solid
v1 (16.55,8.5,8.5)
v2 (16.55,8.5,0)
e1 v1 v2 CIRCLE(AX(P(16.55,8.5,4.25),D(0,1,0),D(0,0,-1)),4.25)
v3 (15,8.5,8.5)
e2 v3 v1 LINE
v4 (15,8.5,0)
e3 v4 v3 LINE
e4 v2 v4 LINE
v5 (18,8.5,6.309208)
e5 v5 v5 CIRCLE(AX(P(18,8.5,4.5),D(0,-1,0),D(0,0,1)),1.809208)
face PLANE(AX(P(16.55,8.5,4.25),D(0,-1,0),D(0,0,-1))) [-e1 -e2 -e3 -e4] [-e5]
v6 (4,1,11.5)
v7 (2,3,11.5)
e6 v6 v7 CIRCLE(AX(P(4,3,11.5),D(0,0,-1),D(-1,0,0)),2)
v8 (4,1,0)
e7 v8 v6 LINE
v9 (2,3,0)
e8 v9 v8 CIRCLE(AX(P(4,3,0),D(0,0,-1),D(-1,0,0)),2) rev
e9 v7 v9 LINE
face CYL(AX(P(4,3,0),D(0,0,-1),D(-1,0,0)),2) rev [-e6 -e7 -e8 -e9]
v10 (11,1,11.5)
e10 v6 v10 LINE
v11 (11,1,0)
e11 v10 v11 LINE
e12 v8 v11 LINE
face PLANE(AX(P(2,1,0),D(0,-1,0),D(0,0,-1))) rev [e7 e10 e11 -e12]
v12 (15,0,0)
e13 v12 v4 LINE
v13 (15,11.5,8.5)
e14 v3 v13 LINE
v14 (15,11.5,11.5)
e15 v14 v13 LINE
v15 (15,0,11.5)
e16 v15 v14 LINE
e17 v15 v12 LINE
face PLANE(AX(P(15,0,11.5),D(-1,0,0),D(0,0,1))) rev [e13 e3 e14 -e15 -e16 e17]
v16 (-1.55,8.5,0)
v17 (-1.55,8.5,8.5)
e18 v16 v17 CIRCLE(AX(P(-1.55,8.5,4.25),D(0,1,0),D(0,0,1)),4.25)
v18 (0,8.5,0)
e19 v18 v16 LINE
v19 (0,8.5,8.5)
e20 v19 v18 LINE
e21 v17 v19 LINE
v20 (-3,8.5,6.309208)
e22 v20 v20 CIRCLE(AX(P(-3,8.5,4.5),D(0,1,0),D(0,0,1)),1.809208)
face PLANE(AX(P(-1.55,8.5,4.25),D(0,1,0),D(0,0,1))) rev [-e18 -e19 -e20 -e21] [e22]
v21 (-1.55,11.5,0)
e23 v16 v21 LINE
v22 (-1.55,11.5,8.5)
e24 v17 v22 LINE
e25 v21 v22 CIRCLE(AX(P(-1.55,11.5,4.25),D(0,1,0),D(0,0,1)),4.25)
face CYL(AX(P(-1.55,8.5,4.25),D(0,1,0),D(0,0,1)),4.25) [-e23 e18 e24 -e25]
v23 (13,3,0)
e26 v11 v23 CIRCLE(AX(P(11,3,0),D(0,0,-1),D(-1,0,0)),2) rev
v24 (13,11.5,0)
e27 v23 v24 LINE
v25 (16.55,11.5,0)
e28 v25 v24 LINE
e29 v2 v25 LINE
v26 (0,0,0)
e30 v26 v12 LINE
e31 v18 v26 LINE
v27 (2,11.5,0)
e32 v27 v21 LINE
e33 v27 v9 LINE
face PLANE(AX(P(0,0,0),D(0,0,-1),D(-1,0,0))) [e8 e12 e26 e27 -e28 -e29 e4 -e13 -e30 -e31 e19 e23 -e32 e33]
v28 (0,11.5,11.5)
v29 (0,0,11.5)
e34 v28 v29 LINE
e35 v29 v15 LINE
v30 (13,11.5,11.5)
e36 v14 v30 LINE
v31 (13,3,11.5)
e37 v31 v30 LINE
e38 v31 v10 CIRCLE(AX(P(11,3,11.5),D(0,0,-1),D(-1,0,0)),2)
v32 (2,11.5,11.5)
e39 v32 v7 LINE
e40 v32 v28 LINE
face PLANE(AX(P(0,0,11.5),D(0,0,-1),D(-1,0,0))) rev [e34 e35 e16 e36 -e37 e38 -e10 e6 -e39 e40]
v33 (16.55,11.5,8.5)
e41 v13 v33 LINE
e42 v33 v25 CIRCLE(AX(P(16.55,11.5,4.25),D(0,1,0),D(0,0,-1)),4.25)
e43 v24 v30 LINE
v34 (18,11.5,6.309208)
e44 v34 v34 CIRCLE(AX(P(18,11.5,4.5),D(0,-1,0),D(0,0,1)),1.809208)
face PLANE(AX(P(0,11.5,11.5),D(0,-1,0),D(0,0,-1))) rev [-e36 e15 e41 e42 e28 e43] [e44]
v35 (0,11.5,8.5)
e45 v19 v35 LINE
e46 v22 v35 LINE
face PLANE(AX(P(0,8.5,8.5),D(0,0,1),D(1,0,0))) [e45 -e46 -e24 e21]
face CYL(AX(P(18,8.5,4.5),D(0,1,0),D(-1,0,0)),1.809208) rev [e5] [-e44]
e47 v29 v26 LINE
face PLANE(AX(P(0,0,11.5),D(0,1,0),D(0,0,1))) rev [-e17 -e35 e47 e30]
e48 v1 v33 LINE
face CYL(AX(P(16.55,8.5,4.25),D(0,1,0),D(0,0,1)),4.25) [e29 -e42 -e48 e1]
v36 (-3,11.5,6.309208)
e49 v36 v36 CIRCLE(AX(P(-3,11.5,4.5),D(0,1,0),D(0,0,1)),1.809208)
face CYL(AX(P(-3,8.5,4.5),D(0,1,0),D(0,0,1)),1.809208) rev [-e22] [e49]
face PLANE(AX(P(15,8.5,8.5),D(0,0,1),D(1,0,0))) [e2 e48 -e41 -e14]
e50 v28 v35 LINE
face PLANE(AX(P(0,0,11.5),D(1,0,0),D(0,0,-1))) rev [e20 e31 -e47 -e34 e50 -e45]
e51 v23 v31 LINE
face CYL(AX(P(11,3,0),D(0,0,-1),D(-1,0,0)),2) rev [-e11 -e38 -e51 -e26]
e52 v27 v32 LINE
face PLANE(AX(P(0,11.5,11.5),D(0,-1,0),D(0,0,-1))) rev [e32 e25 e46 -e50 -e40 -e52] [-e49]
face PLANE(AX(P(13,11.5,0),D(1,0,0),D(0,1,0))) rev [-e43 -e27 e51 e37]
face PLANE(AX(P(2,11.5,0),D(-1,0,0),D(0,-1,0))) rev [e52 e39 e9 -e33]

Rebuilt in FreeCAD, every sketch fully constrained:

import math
import FreeCAD as App
import Part
import Sketcher

V = App.Vector


def edges_at(feature, points):
    """Names of the edges that pass closest to the given points."""
    edges = feature.Shape.Edges
    near = lambda p: min(range(len(edges)), key=lambda i: edges[i].distToShape(Part.Vertex(*p))[0])
    return sorted({f"Edge{near(p) + 1}" for p in points})


def add_polygon(sketch, points):
    """Adds a closed chain of lines whose ends are joined by coincident constraints."""
    first, n = sketch.GeometryCount, len(points)
    for a, b in zip(points, points[1:] + points[:1]):
        sketch.addGeometry(Part.LineSegment(App.Vector(*a, 0), App.Vector(*b, 0)), False)
    for i in range(n):
        sketch.addConstraint(Sketcher.Constraint("Coincident", first + i, 2, first + (i + 1) % n, 1))

doc = App.newDocument("Part")
body = doc.addObject("PartDesign::Body", "Body")

# Sketch on XY plane
sketch1 = body.newObject("Sketcher::SketchObject", "Sketch")
sketch1.AttachmentSupport = (doc.getObject("XY_Plane"), [""])
sketch1.MapMode = "FlatFace"
add_polygon(sketch1, [(0, 11.5), (0, 0), (15, 0), (15, 11.5)])  # lines 0-3
sketch1.addConstraint([
    Sketcher.Constraint("Vertical", 0),
    Sketcher.Constraint("Horizontal", 1),
    Sketcher.Constraint("Vertical", 2),
    Sketcher.Constraint("Horizontal", 3),
    Sketcher.Constraint("Coincident", 0, 2, -1, 1),
    Sketcher.Constraint("DistanceX", 1, 1, 1, 2, 15.0),
    Sketcher.Constraint("DistanceY", 0, 2, 0, 1, 11.5),
])
pad1 = body.newObject("PartDesign::Pad", "Pad")
pad1.Profile = sketch1
pad1.Length = 11.5

# Sketch on XY plane
sketch2 = body.newObject("Sketcher::SketchObject", "Sketch001")
sketch2.AttachmentSupport = (doc.getObject("XY_Plane"), [""])
sketch2.MapMode = "FlatFace"
sketch2.AttachmentOffset = App.Placement(V(0, 0, 11.5), App.Rotation())
add_polygon(sketch2, [(2, 11.5), (2, 1), (13, 1), (13, 11.5)])  # lines 0-3
sketch2.addConstraint([
    Sketcher.Constraint("Vertical", 0),
    Sketcher.Constraint("Horizontal", 1),
    Sketcher.Constraint("Vertical", 2),
    Sketcher.Constraint("Horizontal", 3),
    Sketcher.Constraint("DistanceX", 1, 1, 1, 2, 11.0),
    Sketcher.Constraint("DistanceY", 0, 2, 0, 1, 10.5),
    Sketcher.Constraint("DistanceX", -1, 1, 0, 2, 2.0),
    Sketcher.Constraint("DistanceY", -1, 1, 0, 2, 1.0),
])
pocket1 = body.newObject("PartDesign::Pocket", "Pocket")
pocket1.Profile = sketch2
pocket1.Length = 11.5
doc.recompute()

fillet = body.newObject("PartDesign::Fillet", "Fillet")
fillet.Base = (pocket1, edges_at(pocket1, [(2, 1, 5.75), (13, 1, 5.75)]))
fillet.Radius = 2

# Sketch on XZ plane
sketch3 = body.newObject("Sketcher::SketchObject", "Sketch002")
sketch3.AttachmentSupport = (doc.getObject("XZ_Plane"), [""])
sketch3.MapMode = "FlatFace"
sketch3.AttachmentOffset = App.Placement(V(0, 0, -11.5), App.Rotation())
sketch3.addGeometry([
    Part.LineSegment(V(0, 0, 0), V(-1.55, 0, 0)),  # 0
    Part.ArcOfCircle(Part.Circle(V(-1.55, 4.25, 0), V(0, 0, 1), 4.25), math.radians(90), math.radians(270)),  # 1
    Part.LineSegment(V(-1.55, 8.5, 0), V(0, 8.5, 0)),  # 2
    Part.LineSegment(V(0, 8.5, 0), V(0, 0, 0)),  # 3
    Part.LineSegment(V(16.55, 0, 0), V(15, 0, 0)),  # 4
    Part.LineSegment(V(15, 0, 0), V(15, 8.5, 0)),  # 5
    Part.LineSegment(V(15, 8.5, 0), V(16.55, 8.5, 0)),  # 6
    Part.ArcOfCircle(Part.Circle(V(16.55, 4.25, 0), V(0, 0, 1), 4.25), math.radians(-90), math.radians(90)),  # 7
], False)
sketch3.addConstraint([
    Sketcher.Constraint("Tangent", 0, 2, 1, 2),
    Sketcher.Constraint("Tangent", 1, 1, 2, 1),
    Sketcher.Constraint("Coincident", 2, 2, 3, 1),
    Sketcher.Constraint("Coincident", 3, 2, 0, 1),
    Sketcher.Constraint("Coincident", 4, 2, 5, 1),
    Sketcher.Constraint("Coincident", 5, 2, 6, 1),
    Sketcher.Constraint("Tangent", 6, 2, 7, 2),
    Sketcher.Constraint("Tangent", 7, 1, 4, 1),
    Sketcher.Constraint("Horizontal", 0),
    Sketcher.Constraint("Horizontal", 2),
    Sketcher.Constraint("Vertical", 3),
    Sketcher.Constraint("Horizontal", 4),
    Sketcher.Constraint("Vertical", 5),
    Sketcher.Constraint("Horizontal", 6),
    Sketcher.Constraint("Coincident", 3, 2, -1, 1),
    Sketcher.Constraint("Equal", 1, 7),
    Sketcher.Constraint("PointOnObject", 4, 2, -1),
    Sketcher.Constraint("Equal", 2, 4),
    Sketcher.Constraint("Radius", 1, 4.25),
    Sketcher.Constraint("DistanceX", -1, 1, 4, 2, 15.0),
    Sketcher.Constraint("DistanceX", 0, 2, 0, 1, 1.55),
])
pad2 = body.newObject("PartDesign::Pad", "Pad001")
pad2.Profile = sketch3
pad2.Length = 3

# Sketch on XZ plane
sketch4 = body.newObject("Sketcher::SketchObject", "Sketch003")
sketch4.AttachmentSupport = (doc.getObject("XZ_Plane"), [""])
sketch4.MapMode = "FlatFace"
sketch4.AttachmentOffset = App.Placement(V(0, 0, -11.5), App.Rotation())
sketch4.addGeometry(Part.Circle(V(-3, 4.5, 0), V(0, 0, 1), 1.809208), False)
sketch4.addConstraint([
    Sketcher.Constraint("DistanceX", 0, 3, -1, 1, 3.0),
    Sketcher.Constraint("DistanceY", -1, 1, 0, 3, 4.5),
    Sketcher.Constraint("Diameter", 0, 3.618417),
])
pocket2 = body.newObject("PartDesign::Pocket", "Pocket001")
pocket2.Profile = sketch4
pocket2.Length = 3
pocket2.Reversed = True
doc.recompute()

datumplane = body.newObject("PartDesign::Plane", "DatumPlane")
datumplane.AttachmentSupport = (doc.getObject("YZ_Plane"), [""])
datumplane.MapMode = "FlatFace"
datumplane.AttachmentOffset = App.Placement(V(0, 0, 7.5), App.Rotation())
mirrored = body.newObject("PartDesign::Mirrored", "Mirrored")
mirrored.Originals = [pocket2]
mirrored.MirrorPlane = (datumplane, [""])
body.Tip = mirrored

doc.recompute()
